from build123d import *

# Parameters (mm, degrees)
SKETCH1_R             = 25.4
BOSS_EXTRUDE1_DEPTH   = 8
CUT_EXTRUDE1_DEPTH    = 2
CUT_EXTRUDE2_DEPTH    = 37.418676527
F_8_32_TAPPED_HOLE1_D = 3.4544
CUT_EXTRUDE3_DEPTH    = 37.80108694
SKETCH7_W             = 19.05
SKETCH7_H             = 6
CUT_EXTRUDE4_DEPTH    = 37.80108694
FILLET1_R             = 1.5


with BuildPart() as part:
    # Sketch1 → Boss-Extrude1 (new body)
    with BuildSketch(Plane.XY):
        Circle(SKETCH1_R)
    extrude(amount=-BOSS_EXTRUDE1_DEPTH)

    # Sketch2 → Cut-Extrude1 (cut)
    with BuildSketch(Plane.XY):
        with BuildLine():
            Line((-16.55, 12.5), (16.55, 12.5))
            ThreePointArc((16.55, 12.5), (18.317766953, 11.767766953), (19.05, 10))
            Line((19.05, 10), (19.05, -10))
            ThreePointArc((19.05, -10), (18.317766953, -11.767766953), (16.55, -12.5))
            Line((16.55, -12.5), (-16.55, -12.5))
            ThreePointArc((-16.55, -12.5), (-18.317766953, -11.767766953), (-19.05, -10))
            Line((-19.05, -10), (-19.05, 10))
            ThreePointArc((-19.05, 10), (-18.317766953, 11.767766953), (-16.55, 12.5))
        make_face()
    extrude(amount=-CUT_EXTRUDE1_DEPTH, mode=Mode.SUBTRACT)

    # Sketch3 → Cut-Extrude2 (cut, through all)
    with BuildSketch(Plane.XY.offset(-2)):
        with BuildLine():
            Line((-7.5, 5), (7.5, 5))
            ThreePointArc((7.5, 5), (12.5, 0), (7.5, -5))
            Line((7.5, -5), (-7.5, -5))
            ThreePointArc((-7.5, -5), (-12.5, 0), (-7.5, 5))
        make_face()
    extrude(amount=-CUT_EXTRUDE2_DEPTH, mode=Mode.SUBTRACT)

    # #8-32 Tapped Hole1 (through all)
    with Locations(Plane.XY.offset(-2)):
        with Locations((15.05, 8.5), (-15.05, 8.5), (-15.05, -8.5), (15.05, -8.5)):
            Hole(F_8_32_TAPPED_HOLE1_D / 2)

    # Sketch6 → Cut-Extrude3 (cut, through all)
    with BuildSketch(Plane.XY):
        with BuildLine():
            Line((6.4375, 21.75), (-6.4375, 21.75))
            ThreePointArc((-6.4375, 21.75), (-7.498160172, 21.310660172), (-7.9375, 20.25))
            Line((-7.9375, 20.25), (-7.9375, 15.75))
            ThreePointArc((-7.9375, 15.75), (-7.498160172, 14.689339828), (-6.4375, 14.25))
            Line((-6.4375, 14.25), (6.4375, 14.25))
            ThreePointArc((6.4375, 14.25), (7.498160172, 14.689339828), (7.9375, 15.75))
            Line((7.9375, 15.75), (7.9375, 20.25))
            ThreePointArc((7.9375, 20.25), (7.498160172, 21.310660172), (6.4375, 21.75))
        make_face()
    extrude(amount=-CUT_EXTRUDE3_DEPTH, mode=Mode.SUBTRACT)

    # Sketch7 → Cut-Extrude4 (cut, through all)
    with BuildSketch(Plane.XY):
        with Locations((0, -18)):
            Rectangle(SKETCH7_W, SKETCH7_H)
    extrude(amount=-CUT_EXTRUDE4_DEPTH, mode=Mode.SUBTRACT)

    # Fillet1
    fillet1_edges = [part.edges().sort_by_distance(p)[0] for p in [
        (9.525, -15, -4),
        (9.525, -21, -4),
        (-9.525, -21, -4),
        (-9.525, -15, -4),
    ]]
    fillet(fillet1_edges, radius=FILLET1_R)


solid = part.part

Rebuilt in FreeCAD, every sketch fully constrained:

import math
import FreeCAD as App
import Part
import Sketcher

V = App.Vector
Q = App.Units.Quantity


def edges_at(feature, points):
    """Names of the edges that pass closest to the given points."""
    edges = feature.Shape.Edges
    near = lambda p: min(range(len(edges)), key=lambda i: edges[i].distToShape(Part.Vertex(*p))[0])
    return sorted({f"Edge{near(p) + 1}" for p in points})

doc = App.newDocument("Part")
body = doc.addObject("PartDesign::Body", "Body")

# Sketch on XY plane
sketch1 = doc.addObject("Sketcher::SketchObject", "Sketch")
body.addObject(sketch1)
sketch1.AttachmentSupport = (doc.XY_Plane, [""])
sketch1.MapMode = "FlatFace"
sketch1.addGeometry(Part.Circle(V(0, 0, 0), V(0, 0, 1), 25), False)
sketch1.addConstraint([
    Sketcher.Constraint("Coincident", 0, 3, -1, 1),
    Sketcher.Constraint("Diameter", 0, Q("50.8 mm")),
])
pad1 = doc.addObject("PartDesign::Pad", "Pad")
body.addObject(pad1)
pad1.Profile = sketch1
pad1.Length = 8
pad1.Reversed = True

# Sketch on XY plane
sketch2 = doc.addObject("Sketcher::SketchObject", "Sketch001")
body.addObject(sketch2)
sketch2.AttachmentSupport = (doc.XY_Plane, [""])
sketch2.MapMode = "FlatFace"
sketch2.addGeometry([
    Part.LineSegment(V(16.6, 12.5, 0), V(-16.6, 12.5, 0)),  # 0
    Part.ArcOfCircle(Part.Circle(V(-16.6, 10, 0), V(0, 0, 1), 2.5), math.radians(90), math.radians(180)),  # 1
    Part.LineSegment(V(-19.1, 10, 0), V(-19.1, -10, 0)),  # 2
    Part.ArcOfCircle(Part.Circle(V(-16.6, -10, 0), V(0, 0, 1), 2.5), math.radians(180), math.radians(270)),  # 3
    Part.LineSegment(V(-16.6, -12.5, 0), V(16.6, -12.5, 0)),  # 4
    Part.ArcOfCircle(Part.Circle(V(16.6, -10, 0), V(0, 0, 1), 2.5), math.radians(-90), math.radians(0)),  # 5
    Part.LineSegment(V(19.1, -10, 0), V(19.1, 10, 0)),  # 6
    Part.ArcOfCircle(Part.Circle(V(16.6, 10, 0), V(0, 0, 1), 2.5), math.radians(0), math.radians(90)),  # 7
], False)
sketch2.addConstraint([
    Sketcher.Constraint("Tangent", 0, 2, 1, 1),
    Sketcher.Constraint("Tangent", 1, 2, 2, 1),
    Sketcher.Constraint("Tangent", 2, 2, 3, 1),
    Sketcher.Constraint("Tangent", 3, 2, 4, 1),
    Sketcher.Constraint("Tangent", 4, 2, 5, 1),
    Sketcher.Constraint("Tangent", 5, 2, 6, 1),
    Sketcher.Constraint("Tangent", 6, 2, 7, 1),
    Sketcher.Constraint("Tangent", 7, 2, 0, 1),
    Sketcher.Constraint("Horizontal", 0),
    Sketcher.Constraint("Vertical", 2),
    Sketcher.Constraint("Horizontal", 4),
    Sketcher.Constraint("Vertical", 6),
    Sketcher.Constraint("Equal", 1, 3),
    Sketcher.Constraint("Equal", 3, 5),
    Sketcher.Constraint("Equal", 5, 7),
    Sketcher.Constraint("Symmetric", 1, 3, 5, 3, -1, 1),
    Sketcher.Constraint("Radius", 1, Q("2.5 mm")),
    Sketcher.Constraint("DistanceY", 2, 2, 2, 1, Q("20 mm")),
    Sketcher.Constraint("DistanceX", 0, 2, 0, 1, Q("33.1 mm")),
])
pocket1 = doc.addObject("PartDesign::Pocket", "Pocket")
body.addObject(pocket1)
pocket1.Profile = sketch2
pocket1.Length = 2

# Sketch on XY plane
sketch3 = doc.addObject("Sketcher::SketchObject", "Sketch002")
body.addObject(sketch3)
sketch3.AttachmentSupport = (doc.XY_Plane, [""])
sketch3.MapMode = "FlatFace"
sketch3.AttachmentOffset = App.Placement(V(0, 0, -2), App.Rotation())
sketch3.addGeometry([
    Part.LineSegment(V(8, 5, 0), V(-8, 5, 0)),
    Part.ArcOfCircle(Part.Circle(V(-8, 0, 0), V(0, 0, 1), 5), math.radians(90), math.radians(270)),
    Part.LineSegment(V(-8, -5, 0), V(8, -5, 0)),
    Part.ArcOfCircle(Part.Circle(V(8, 0, 0), V(0, 0, 1), 5), math.radians(-90), math.radians(90)),
], False)
sketch3.addConstraint([
    Sketcher.Constraint("Tangent", 0, 2, 1, 1),
    Sketcher.Constraint("Tangent", 1, 2, 2, 1),
    Sketcher.Constraint("Tangent", 2, 2, 3, 1),
    Sketcher.Constraint("Tangent", 3, 2, 0, 1),
    Sketcher.Constraint("Horizontal", 0),
    Sketcher.Constraint("Horizontal", 2),
    Sketcher.Constraint("Symmetric", 1, 3, 3, 3, -1, 1),
    Sketcher.Constraint("Radius", 1, Q("5 mm")),
    Sketcher.Constraint("DistanceX", 0, 2, 0, 1, Q("15 mm")),
])
pocket2 = doc.addObject("PartDesign::Pocket", "Pocket001")
body.addObject(pocket2)
pocket2.Profile = sketch3
pocket2.Type = "ThroughAll"

# Sketch on XY plane
sketch4 = doc.addObject("Sketcher::SketchObject", "Sketch003")
body.addObject(sketch4)
sketch4.AttachmentSupport = (doc.XY_Plane, [""])
sketch4.MapMode = "FlatFace"
sketch4.AttachmentOffset = App.Placement(V(0, 0, -2), App.Rotation())
sketch4.addGeometry([
    Part.Circle(V(15.1, 8.5, 0), V(0, 0, 1), 1.7),
    Part.Circle(V(-15.1, 8.5, 0), V(0, 0, 1), 1.7),
    Part.Circle(V(-15.1, -8.5, 0), V(0, 0, 1), 1.7),
    Part.Circle(V(15.1, -8.5, 0), V(0, 0, 1), 1.7),
], False)
sketch4.addConstraint([
    Sketcher.Constraint("Equal", 0, 1),
    Sketcher.Constraint("Equal", 1, 2),
    Sketcher.Constraint("Equal", 2, 3),
    Sketcher.Constraint("Symmetric", 0, 3, 2, 3, -1, 1),
    Sketcher.Constraint("Symmetric", 1, 3, 3, 3, -1, 1),
    Sketcher.Constraint("Symmetric", 0, 3, 1, 3, -2),
    Sketcher.Constraint("DistanceY", 2, 3, 1, 3, Q("17 mm")),
    Sketcher.Constraint("Diameter", 0, Q("3.4544 mm")),
    Sketcher.Constraint("DistanceX", 1, 3, 0, 3, Q("30.1 mm")),
])
doc.recompute()
hole = doc.addObject("PartDesign::Hole", "Hole")
body.addObject(hole)
hole.Profile = sketch4
hole.ThreadType = "None"
hole.Diameter = 3.4544
hole.DepthType = "ThroughAll"

# Sketch on XY plane
sketch5 = doc.addObject("Sketcher::SketchObject", "Sketch004")
body.addObject(sketch5)
sketch5.AttachmentSupport = (doc.XY_Plane, [""])
sketch5.MapMode = "FlatFace"
sketch5.addGeometry([
    Part.LineSegment(V(6.4, 21.8, 0), V(-6.4, 21.8, 0)),  # 0
    Part.ArcOfCircle(Part.Circle(V(-6.4, 20.3, 0), V(0, 0, 1), 1.5), math.radians(90), math.radians(180)),  # 1
    Part.LineSegment(V(-7.9, 20.2, 0), V(-7.9, 15.8, 0)),  # 2
    Part.ArcOfCircle(Part.Circle(V(-6.4, 15.7, 0), V(0, 0, 1), 1.5), math.radians(180), math.radians(270)),  # 3
    Part.LineSegment(V(-6.4, 14.2, 0), V(6.4, 14.2, 0)),  # 4
    Part.ArcOfCircle(Part.Circle(V(6.4, 15.7, 0), V(0, 0, 1), 1.5), math.radians(-90), math.radians(0)),  # 5
    Part.LineSegment(V(7.9, 15.8, 0), V(7.9, 20.2, 0)),  # 6
    Part.ArcOfCircle(Part.Circle(V(6.4, 20.3, 0), V(0, 0, 1), 1.5), math.radians(0), math.radians(90)),  # 7
], False)
sketch5.addConstraint([
    Sketcher.Constraint("Tangent", 0, 2, 1, 1),
    Sketcher.Constraint("Tangent", 1, 2, 2, 1),
    Sketcher.Constraint("Tangent", 2, 2, 3, 1),
    Sketcher.Constraint("Tangent", 3, 2, 4, 1),
    Sketcher.Constraint("Tangent", 4, 2, 5, 1),
    Sketcher.Constraint("Tangent", 5, 2, 6, 1),
    Sketcher.Constraint("Tangent", 6, 2, 7, 1),
    Sketcher.Constraint("Tangent", 7, 2, 0, 1),
    Sketcher.Constraint("Horizontal", 0),
    Sketcher.Constraint("Vertical", 2),
    Sketcher.Constraint("Horizontal", 4),
    Sketcher.Constraint("Vertical", 6),
    Sketcher.Constraint("Equal", 1, 3),
    Sketcher.Constraint("Equal", 3, 5),
    Sketcher.Constraint("Equal", 5, 7),
    Sketcher.Constraint("Radius", 1, Q("1.5 mm")),
    Sketcher.Constraint("DistanceY", 2, 2, 2, 1, Q("4.5 mm")),
    Sketcher.Constraint("DistanceX", 0, 2, 0, 1, Q("12.875 mm")),
    Sketcher.Constraint("DistanceY", -1, 1, 1, 3, Q("20.25 mm")),
    Sketcher.Constraint("DistanceX", 1, 3, -1, 1, Q("6.4375 mm")),
])
pocket3 = doc.addObject("PartDesign::Pocket", "Pocket002")
body.addObject(pocket3)
pocket3.Profile = sketch5
pocket3.Type = "ThroughAll"

# Sketch on XY plane
sketch6 = doc.addObject("Sketcher::SketchObject", "Sketch005")
body.addObject(sketch6)
sketch6.AttachmentSupport = (doc.XY_Plane, [""])
sketch6.MapMode = "FlatFace"
sketch6.addGeometry([
    Part.LineSegment(V(-10, -15, 0), V(-10, -21, 0)),
    Part.LineSegment(V(-10, -21, 0), V(10, -21, 0)),
    Part.LineSegment(V(10, -21, 0), V(10, -15, 0)),
    Part.LineSegment(V(10, -15, 0), V(-10, -15, 0)),
], False)
sketch6.addConstraint([
    Sketcher.Constraint("Coincident", 0, 2, 1, 1),
    Sketcher.Constraint("Coincident", 1, 2, 2, 1),
    Sketcher.Constraint("Coincident", 2, 2, 3, 1),
    Sketcher.Constraint("Coincident", 3, 2, 0, 1),
    Sketcher.Constraint("Vertical", 0),
    Sketcher.Constraint("Horizontal", 1),
    Sketcher.Constraint("Vertical", 2),
    Sketcher.Constraint("Horizontal", 3),
    Sketcher.Constraint("DistanceY", 0, 2, 0, 1, Q("6 mm")),
    Sketcher.Constraint("DistanceY", 0, 2, -1, 1, Q("21 mm")),
    Sketcher.Constraint("DistanceX", 1, 1, 1, 2, Q("19.05 mm")),
    Sketcher.Constraint("DistanceX", 0, 2, -1, 1, Q("9.525 mm")),
])
pocket4 = doc.addObject("PartDesign::Pocket", "Pocket003")
body.addObject(pocket4)
pocket4.Profile = sketch6
pocket4.Type = "ThroughAll"
doc.recompute()

fillet = doc.addObject("PartDesign::Fillet", "Fillet")
body.addObject(fillet)
fillet.Base = (pocket4, edges_at(pocket4, [
    (9.525, -15, -4),
    (9.525, -21, -4),
    (-9.525, -21, -4),
    (-9.525, -15, -4),
]))
fillet.Radius = 1.5

doc.recompute()
